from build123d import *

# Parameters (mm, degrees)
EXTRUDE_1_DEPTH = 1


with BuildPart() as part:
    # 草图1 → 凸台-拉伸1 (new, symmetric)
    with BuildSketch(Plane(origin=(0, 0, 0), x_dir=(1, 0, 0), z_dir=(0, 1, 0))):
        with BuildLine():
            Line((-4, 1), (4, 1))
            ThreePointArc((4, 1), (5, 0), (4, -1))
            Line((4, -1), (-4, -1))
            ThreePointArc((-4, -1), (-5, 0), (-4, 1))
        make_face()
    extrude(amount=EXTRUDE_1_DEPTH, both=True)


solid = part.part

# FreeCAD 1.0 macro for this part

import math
import FreeCAD as App
import Part
import Sketcher

doc = App.newDocument("Part")
params = doc.addObject("Spreadsheet::Sheet", "Params")
for row, (alias, value) in enumerate([
    ("sketch1_radius", "1 mm"),
    ("sketch1_width", "8 mm"),
    ("pad1_length", "2 mm"),
], start=1):
    params.set(f"A{row}", alias)
    params.set(f"B{row}", "=" + value)
    params.setAlias(f"B{row}", alias)

body = doc.addObject("PartDesign::Body", "Body")

# Sketch on XZ plane
sketch1 = body.newObject("Sketcher::SketchObject", "Sketch")
sketch1.AttachmentSupport = (doc.getObject("XZ_Plane"), [""])
sketch1.MapMode = "FlatFace"
sketch1.addGeometry([
    Part.LineSegment(App.Vector(4, -1, 0), App.Vector(-4, -1, 0)),
    Part.ArcOfCircle(Part.Circle(App.Vector(-4, 0, 0), App.Vector(0, 0, 1), 1), math.radians(90), math.radians(270)),
    Part.LineSegment(App.Vector(-4, 1, 0), App.Vector(4, 1, 0)),
    Part.ArcOfCircle(Part.Circle(App.Vector(4, 0, 0), App.Vector(0, 0, 1), 1), math.radians(-90), math.radians(90)),
], False)
sketch1.addConstraint([
    Sketcher.Constraint("Tangent", 0, 2, 1, 2),
    Sketcher.Constraint("Tangent", 1, 1, 2, 1),
    Sketcher.Constraint("Tangent", 2, 2, 3, 2),
    Sketcher.Constraint("Tangent", 3, 1, 0, 1),
    Sketcher.Constraint("Horizontal", 0),
    Sketcher.Constraint("Horizontal", 2),
    Sketcher.Constraint("Symmetric", 1, 3, 3, 3, -1, 1),
    Sketcher.Constraint("Radius", 1, 1.0),
    Sketcher.Constraint("DistanceX", 0, 2, 0, 1, 8.0),
])
sketch1.setExpression("Constraints[7]", "Params.sketch1_radius")
sketch1.setExpression("Constraints[8]", "Params.sketch1_width")
pad1 = body.newObject("PartDesign::Pad", "Pad")
pad1.Profile = sketch1
pad1.setExpression("Length", "Params.pad1_length")
pad1.Midplane = True

doc.recompute()
